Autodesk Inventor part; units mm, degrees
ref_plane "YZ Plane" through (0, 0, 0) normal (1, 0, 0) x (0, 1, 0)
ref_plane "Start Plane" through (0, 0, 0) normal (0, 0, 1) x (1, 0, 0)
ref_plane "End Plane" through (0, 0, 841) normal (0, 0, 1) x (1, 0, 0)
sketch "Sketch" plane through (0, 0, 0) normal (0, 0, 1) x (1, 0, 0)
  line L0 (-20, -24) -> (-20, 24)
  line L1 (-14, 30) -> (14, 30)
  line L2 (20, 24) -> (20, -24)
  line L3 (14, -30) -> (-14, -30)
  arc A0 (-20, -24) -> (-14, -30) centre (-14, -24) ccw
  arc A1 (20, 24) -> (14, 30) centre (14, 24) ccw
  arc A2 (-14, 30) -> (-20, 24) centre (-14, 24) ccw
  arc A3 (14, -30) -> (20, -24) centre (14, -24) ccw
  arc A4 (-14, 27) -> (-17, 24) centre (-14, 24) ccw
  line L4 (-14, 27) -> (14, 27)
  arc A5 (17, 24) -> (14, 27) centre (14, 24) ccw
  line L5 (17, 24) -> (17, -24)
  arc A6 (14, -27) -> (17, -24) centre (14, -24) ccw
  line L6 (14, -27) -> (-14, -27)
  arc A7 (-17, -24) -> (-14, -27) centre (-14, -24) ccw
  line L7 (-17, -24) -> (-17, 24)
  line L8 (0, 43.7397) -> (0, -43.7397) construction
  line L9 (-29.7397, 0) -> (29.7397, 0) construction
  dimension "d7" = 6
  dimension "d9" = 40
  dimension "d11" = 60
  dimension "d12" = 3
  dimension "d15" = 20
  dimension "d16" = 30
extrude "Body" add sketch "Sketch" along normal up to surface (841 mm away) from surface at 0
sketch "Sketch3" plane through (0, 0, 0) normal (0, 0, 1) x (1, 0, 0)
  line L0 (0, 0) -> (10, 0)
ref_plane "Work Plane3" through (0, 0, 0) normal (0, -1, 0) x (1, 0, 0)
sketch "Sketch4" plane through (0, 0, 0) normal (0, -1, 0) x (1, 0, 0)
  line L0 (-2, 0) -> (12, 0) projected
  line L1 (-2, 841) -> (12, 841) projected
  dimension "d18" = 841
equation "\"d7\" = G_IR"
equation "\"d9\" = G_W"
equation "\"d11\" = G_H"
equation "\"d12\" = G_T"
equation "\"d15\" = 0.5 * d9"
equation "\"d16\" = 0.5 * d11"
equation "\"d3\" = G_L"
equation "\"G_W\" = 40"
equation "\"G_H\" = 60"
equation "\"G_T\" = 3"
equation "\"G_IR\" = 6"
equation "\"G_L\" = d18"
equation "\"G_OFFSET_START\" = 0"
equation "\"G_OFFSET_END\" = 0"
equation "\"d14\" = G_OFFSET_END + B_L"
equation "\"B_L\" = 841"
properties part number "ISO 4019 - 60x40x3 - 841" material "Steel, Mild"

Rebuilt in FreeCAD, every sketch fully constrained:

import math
import FreeCAD as App
import Part
import Sketcher
from FreeCAD import Vector

doc = App.newDocument("Part")
body = doc.addObject("PartDesign::Body", "Body")

sketch1 = body.newObject("Sketcher::SketchObject", "Sketch")
sketch1.AttachmentSupport = (doc.getObject("XY_Plane"), [""])
sketch1.MapMode = "FlatFace"
sketch1.addGeometry(Part.LineSegment(Vector(-20, 24, 0), Vector(-20, -24, 0)), False)
sketch1.addGeometry(Part.ArcOfCircle(Part.Circle(Vector(-14, -24, 0), Vector(0, 0, 1), 6), math.radians(180), math.radians(270)), False)
sketch1.addGeometry(Part.LineSegment(Vector(-14, -30, 0), Vector(14, -30, 0)), False)
sketch1.addGeometry(Part.ArcOfCircle(Part.Circle(Vector(14, -24, 0), Vector(0, 0, 1), 6), math.radians(-90), math.radians(0)), False)
sketch1.addGeometry(Part.LineSegment(Vector(20, -24, 0), Vector(20, 24, 0)), False)
sketch1.addGeometry(Part.ArcOfCircle(Part.Circle(Vector(14, 24, 0), Vector(0, 0, 1), 6), math.radians(0), math.radians(90)), False)
sketch1.addGeometry(Part.LineSegment(Vector(14, 30, 0), Vector(-14, 30, 0)), False)
sketch1.addGeometry(Part.ArcOfCircle(Part.Circle(Vector(-14, 24, 0), Vector(0, 0, 1), 6), math.radians(90), math.radians(180)), False)
sketch1.addGeometry(Part.ArcOfCircle(Part.Circle(Vector(-14, 24, 0), Vector(0, 0, 1), 3), math.radians(90), math.radians(180)), False)
sketch1.addGeometry(Part.LineSegment(Vector(-14, 27, 0), Vector(14, 27, 0)), False)
sketch1.addGeometry(Part.ArcOfCircle(Part.Circle(Vector(14, 24, 0), Vector(0, 0, 1), 3), math.radians(0), math.radians(90)), False)
sketch1.addGeometry(Part.LineSegment(Vector(17, 24, 0), Vector(17, -24, 0)), False)
sketch1.addGeometry(Part.ArcOfCircle(Part.Circle(Vector(14, -24, 0), Vector(0, 0, 1), 3), math.radians(-90), math.radians(0)), False)
sketch1.addGeometry(Part.LineSegment(Vector(14, -27, 0), Vector(-14, -27, 0)), False)
sketch1.addGeometry(Part.ArcOfCircle(Part.Circle(Vector(-14, -24, 0), Vector(0, 0, 1), 3), math.radians(180), math.radians(270)), False)
sketch1.addGeometry(Part.LineSegment(Vector(-17, -24, 0), Vector(-17, 24, 0)), False)
sketch1.addConstraint(Sketcher.Constraint("Tangent", 0, 2, 1, 1))
sketch1.addConstraint(Sketcher.Constraint("Tangent", 1, 2, 2, 1))
sketch1.addConstraint(Sketcher.Constraint("Tangent", 2, 2, 3, 1))
sketch1.addConstraint(Sketcher.Constraint("Tangent", 3, 2, 4, 1))
sketch1.addConstraint(Sketcher.Constraint("Tangent", 4, 2, 5, 1))
sketch1.addConstraint(Sketcher.Constraint("Tangent", 5, 2, 6, 1))
sketch1.addConstraint(Sketcher.Constraint("Tangent", 6, 2, 7, 1))
sketch1.addConstraint(Sketcher.Constraint("Tangent", 7, 2, 0, 1))
sketch1.addConstraint(Sketcher.Constraint("Tangent", 8, 1, 9, 1))
sketch1.addConstraint(Sketcher.Constraint("Tangent", 9, 2, 10, 2))
sketch1.addConstraint(Sketcher.Constraint("Tangent", 10, 1, 11, 1))
sketch1.addConstraint(Sketcher.Constraint("Tangent", 11, 2, 12, 2))
sketch1.addConstraint(Sketcher.Constraint("Tangent", 12, 1, 13, 1))
sketch1.addConstraint(Sketcher.Constraint("Tangent", 13, 2, 14, 2))
sketch1.addConstraint(Sketcher.Constraint("Tangent", 14, 1, 15, 1))
sketch1.addConstraint(Sketcher.Constraint("Tangent", 15, 2, 8, 2))
sketch1.addConstraint(Sketcher.Constraint("Vertical", 0))
sketch1.addConstraint(Sketcher.Constraint("Horizontal", 2))
sketch1.addConstraint(Sketcher.Constraint("Vertical", 4))
sketch1.addConstraint(Sketcher.Constraint("Horizontal", 6))
sketch1.addConstraint(Sketcher.Constraint("Horizontal", 9))
sketch1.addConstraint(Sketcher.Constraint("Vertical", 11))
sketch1.addConstraint(Sketcher.Constraint("Horizontal", 13))
sketch1.addConstraint(Sketcher.Constraint("Vertical", 15))
sketch1.addConstraint(Sketcher.Constraint("Coincident", 8, 3, 7, 3))
sketch1.addConstraint(Sketcher.Constraint("Coincident", 10, 3, 5, 3))
sketch1.addConstraint(Sketcher.Constraint("Coincident", 12, 3, 3, 3))
sketch1.addConstraint(Sketcher.Constraint("Equal", 1, 3))
sketch1.addConstraint(Sketcher.Constraint("Equal", 3, 5))
sketch1.addConstraint(Sketcher.Constraint("Equal", 5, 7))
sketch1.addConstraint(Sketcher.Constraint("Equal", 12, 14))
sketch1.addConstraint(Sketcher.Constraint("Symmetric", 1, 3, 5, 3, -1, 1))
sketch1.addConstraint(Sketcher.Constraint("Radius", 1, 6.0))
sketch1.addConstraint(Sketcher.Constraint("Radius", 8, 3.0))
sketch1.addConstraint(Sketcher.Constraint("DistanceX", 0, 2, -1, 1, 20.0))
sketch1.addConstraint(Sketcher.Constraint("DistanceY", 1, 2, -1, 1, 30.0))
pad1 = body.newObject("PartDesign::Pad", "Pad")
pad1.Profile = sketch1
pad1.Length = 841

doc.recompute()
